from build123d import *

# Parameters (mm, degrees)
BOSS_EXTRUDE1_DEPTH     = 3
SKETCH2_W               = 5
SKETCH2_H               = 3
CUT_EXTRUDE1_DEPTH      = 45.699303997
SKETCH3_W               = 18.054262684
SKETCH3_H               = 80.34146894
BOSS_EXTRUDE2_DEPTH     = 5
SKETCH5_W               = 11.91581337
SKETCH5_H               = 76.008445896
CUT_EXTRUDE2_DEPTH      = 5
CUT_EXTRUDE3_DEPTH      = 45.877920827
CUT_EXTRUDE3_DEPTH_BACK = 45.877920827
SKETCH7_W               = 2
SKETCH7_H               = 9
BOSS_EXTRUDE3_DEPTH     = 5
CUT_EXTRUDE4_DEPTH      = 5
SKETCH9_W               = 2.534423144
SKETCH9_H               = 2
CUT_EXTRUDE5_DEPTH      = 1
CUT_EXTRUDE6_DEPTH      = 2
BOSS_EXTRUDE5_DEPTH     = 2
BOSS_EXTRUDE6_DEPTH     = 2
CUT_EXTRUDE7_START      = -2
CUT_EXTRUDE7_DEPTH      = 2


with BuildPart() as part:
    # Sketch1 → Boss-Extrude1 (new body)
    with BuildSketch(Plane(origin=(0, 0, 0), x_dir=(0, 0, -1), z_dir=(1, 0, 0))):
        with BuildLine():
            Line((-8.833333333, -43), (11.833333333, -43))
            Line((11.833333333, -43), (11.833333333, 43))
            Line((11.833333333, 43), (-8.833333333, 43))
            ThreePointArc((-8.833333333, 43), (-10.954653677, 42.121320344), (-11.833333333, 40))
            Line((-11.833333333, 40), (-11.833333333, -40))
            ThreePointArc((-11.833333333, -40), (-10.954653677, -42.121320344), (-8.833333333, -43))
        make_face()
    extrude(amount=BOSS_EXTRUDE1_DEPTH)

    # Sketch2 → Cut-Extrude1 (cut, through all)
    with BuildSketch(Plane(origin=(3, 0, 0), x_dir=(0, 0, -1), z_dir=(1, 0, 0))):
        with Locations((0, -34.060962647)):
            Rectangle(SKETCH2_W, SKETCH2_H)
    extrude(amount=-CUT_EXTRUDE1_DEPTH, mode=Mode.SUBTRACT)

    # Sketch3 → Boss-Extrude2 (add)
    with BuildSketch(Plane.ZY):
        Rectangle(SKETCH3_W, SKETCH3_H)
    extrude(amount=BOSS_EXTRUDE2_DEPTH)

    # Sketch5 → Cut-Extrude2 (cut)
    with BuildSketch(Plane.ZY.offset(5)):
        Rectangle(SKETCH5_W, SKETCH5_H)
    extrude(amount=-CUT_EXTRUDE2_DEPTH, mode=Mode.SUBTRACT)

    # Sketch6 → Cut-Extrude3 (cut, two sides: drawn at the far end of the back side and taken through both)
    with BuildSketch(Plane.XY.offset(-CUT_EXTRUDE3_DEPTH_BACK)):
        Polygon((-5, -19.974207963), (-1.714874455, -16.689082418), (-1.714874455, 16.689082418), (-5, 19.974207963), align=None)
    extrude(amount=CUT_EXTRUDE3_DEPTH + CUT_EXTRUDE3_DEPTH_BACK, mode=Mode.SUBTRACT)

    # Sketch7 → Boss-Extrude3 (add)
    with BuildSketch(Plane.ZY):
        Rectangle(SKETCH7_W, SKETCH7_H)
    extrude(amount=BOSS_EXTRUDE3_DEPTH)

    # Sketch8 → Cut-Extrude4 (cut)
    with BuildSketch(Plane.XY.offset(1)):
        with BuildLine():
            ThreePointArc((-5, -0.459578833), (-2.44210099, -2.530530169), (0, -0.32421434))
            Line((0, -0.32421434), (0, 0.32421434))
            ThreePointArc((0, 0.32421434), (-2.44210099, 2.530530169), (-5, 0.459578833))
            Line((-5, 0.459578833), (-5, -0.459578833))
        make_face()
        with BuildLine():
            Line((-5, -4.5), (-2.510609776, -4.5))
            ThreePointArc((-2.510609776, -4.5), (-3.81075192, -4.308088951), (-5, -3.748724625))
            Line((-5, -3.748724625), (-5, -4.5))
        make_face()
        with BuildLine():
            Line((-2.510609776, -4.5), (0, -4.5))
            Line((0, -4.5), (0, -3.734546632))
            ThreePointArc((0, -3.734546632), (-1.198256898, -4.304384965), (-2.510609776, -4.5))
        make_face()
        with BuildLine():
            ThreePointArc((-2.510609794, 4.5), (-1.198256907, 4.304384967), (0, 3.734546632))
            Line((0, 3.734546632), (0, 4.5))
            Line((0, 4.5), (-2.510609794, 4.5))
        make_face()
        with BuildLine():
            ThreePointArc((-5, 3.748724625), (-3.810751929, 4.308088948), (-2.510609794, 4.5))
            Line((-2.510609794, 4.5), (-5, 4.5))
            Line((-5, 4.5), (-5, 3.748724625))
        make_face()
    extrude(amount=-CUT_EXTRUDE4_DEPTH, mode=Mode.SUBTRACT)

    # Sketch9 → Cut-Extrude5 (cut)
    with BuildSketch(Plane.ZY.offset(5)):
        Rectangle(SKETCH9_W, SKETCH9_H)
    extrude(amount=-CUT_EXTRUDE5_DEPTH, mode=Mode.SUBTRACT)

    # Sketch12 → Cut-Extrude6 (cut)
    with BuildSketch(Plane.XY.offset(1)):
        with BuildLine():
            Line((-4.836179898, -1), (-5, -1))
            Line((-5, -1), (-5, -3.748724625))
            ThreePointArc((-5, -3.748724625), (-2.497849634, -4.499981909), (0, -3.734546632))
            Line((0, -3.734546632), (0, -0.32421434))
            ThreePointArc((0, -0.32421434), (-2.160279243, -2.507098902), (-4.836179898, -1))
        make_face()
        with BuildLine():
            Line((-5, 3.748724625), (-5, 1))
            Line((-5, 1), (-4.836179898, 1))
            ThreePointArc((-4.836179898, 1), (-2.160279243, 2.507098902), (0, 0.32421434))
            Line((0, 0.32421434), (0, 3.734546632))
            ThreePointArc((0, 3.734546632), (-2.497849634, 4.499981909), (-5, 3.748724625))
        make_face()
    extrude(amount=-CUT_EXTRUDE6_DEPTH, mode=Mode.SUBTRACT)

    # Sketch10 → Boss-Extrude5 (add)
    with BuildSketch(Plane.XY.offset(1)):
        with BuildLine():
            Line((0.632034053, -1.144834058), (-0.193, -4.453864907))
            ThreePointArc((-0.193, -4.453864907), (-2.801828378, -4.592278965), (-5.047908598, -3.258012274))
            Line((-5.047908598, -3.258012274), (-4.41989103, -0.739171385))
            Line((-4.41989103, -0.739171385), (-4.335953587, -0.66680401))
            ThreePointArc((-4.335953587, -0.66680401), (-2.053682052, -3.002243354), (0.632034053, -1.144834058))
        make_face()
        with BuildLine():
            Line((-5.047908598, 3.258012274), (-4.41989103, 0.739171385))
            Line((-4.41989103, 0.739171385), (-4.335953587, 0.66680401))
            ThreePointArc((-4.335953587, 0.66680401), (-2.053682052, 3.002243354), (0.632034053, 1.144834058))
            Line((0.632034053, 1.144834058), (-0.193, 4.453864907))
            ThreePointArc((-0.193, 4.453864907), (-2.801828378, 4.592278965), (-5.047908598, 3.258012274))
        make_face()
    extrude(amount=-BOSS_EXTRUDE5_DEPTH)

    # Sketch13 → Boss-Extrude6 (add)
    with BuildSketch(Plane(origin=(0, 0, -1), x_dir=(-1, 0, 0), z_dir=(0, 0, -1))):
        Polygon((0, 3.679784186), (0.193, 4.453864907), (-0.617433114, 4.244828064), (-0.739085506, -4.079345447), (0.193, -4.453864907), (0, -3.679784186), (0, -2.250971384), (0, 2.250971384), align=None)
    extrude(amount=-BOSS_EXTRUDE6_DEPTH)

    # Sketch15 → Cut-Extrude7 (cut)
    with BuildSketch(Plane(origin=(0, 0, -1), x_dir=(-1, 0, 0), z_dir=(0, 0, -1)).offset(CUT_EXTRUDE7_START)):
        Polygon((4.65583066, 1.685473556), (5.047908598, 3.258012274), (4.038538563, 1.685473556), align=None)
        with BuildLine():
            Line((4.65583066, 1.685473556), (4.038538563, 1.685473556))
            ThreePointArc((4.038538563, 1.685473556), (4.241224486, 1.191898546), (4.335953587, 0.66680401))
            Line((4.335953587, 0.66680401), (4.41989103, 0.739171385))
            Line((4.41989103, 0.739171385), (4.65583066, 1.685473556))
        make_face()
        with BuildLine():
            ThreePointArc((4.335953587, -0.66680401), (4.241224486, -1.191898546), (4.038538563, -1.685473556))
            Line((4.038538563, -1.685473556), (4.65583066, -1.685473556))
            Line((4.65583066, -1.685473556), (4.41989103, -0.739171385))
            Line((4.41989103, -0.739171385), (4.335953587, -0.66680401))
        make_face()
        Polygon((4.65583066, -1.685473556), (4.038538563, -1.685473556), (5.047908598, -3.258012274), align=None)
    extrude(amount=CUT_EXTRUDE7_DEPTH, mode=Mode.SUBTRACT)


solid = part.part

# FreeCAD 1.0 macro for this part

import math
import FreeCAD as App
import Part
import Sketcher

V = App.Vector
Q = App.Units.Quantity


def add_polygon(sketch, points):
    """Adds a closed chain of lines whose ends are joined by coincident constraints."""
    first, n = sketch.GeometryCount, len(points)
    for a, b in zip(points, points[1:] + points[:1]):
        sketch.addGeometry(Part.LineSegment(App.Vector(*a, 0), App.Vector(*b, 0)), False)
    for i in range(n):
        sketch.addConstraint(Sketcher.Constraint("Coincident", first + i, 2, first + (i + 1) % n, 1))

doc = App.newDocument("Part")
body = doc.addObject("PartDesign::Body", "Body")

# Sketch on YZ plane
sketch1 = doc.addObject("Sketcher::SketchObject", "Sketch")
body.addObject(sketch1)
sketch1.AttachmentSupport = (doc.YZ_Plane, [""])
sketch1.MapMode = "FlatFace"
sketch1.addGeometry(Part.LineSegment(V(-43, 8.8, 0), V(-43, -11.8, 0)), False)
sketch1.addGeometry(Part.LineSegment(V(-43, -11.8, 0), V(43, -11.8, 0)), False)
sketch1.addGeometry(Part.LineSegment(V(43, -11.8, 0), V(43, 8.8, 0)), False)
sketch1.addGeometry(Part.ArcOfCircle(Part.Circle(V(40, 8.8, 0), V(0, 0, 1), 3), math.radians(0), math.radians(90)), False)
sketch1.addGeometry(Part.LineSegment(V(40, 11.8, 0), V(-40, 11.8, 0)), False)
sketch1.addGeometry(Part.ArcOfCircle(Part.Circle(V(-40, 8.8, 0), V(0, 0, 1), 3), math.radians(90), math.radians(180)), False)
sketch1.addConstraint(Sketcher.Constraint("Coincident", 0, 2, 1, 1))
sketch1.addConstraint(Sketcher.Constraint("Coincident", 1, 2, 2, 1))
sketch1.addConstraint(Sketcher.Constraint("Tangent", 2, 2, 3, 1))
sketch1.addConstraint(Sketcher.Constraint("Tangent", 3, 2, 4, 1))
sketch1.addConstraint(Sketcher.Constraint("Tangent", 4, 2, 5, 1))
sketch1.addConstraint(Sketcher.Constraint("Tangent", 5, 2, 0, 1))
sketch1.addConstraint(Sketcher.Constraint("Vertical", 0))
sketch1.addConstraint(Sketcher.Constraint("Horizontal", 1))
sketch1.addConstraint(Sketcher.Constraint("Vertical", 2))
sketch1.addConstraint(Sketcher.Constraint("Horizontal", 4))
sketch1.addConstraint(Sketcher.Constraint("Equal", 3, 5))
sketch1.addConstraint(Sketcher.Constraint("Radius", 3, 3.0))
sketch1.addConstraint(Sketcher.Constraint("DistanceX", 1, 1, 1, 2, 86.0))
sketch1.addConstraint(Sketcher.Constraint("DistanceX", -1, 1, 3, 3, 40.0))
sketch1.addConstraint(Sketcher.Constraint("DistanceY", 0, 2, 0, 1, 20.666667))
sketch1.addConstraint(Sketcher.Constraint("DistanceY", -1, 1, 3, 3, 8.833333))
pad1 = doc.addObject("PartDesign::Pad", "Pad")
body.addObject(pad1)
pad1.Profile = sketch1
pad1.Length = 3

# Sketch on YZ plane
sketch2 = doc.addObject("Sketcher::SketchObject", "Sketch001")
body.addObject(sketch2)
sketch2.AttachmentSupport = (doc.YZ_Plane, [""])
sketch2.MapMode = "FlatFace"
sketch2.AttachmentOffset = App.Placement(V(0, 0, 3), App.Rotation())
add_polygon(sketch2, [(-32.6, 2.5), (-35.6, 2.5), (-35.6, -2.5), (-32.6, -2.5)])  # lines 0-3
sketch2.addConstraint(Sketcher.Constraint("Horizontal", 0))
sketch2.addConstraint(Sketcher.Constraint("Vertical", 1))
sketch2.addConstraint(Sketcher.Constraint("Horizontal", 2))
sketch2.addConstraint(Sketcher.Constraint("Vertical", 3))
sketch2.addConstraint(Sketcher.Constraint("DistanceX", 0, 2, 0, 1, 3.0))
sketch2.addConstraint(Sketcher.Constraint("DistanceY", 1, 2, 1, 1, 5.0))
sketch2.addConstraint(Sketcher.Constraint("DistanceY", -1, 1, 0, 2, 2.5))
sketch2.addConstraint(Sketcher.Constraint("DistanceX", 0, 2, -1, 1, 35.560963))
pocket1 = doc.addObject("PartDesign::Pocket", "Pocket")
body.addObject(pocket1)
pocket1.Profile = sketch2
pocket1.Type = "ThroughAll"

# Sketch on YZ plane
sketch3 = doc.addObject("Sketcher::SketchObject", "Sketch002")
body.addObject(sketch3)
sketch3.AttachmentSupport = (doc.YZ_Plane, [""])
sketch3.MapMode = "FlatFace"
add_polygon(sketch3, [(40, -9), (-40, -9), (-40, 9), (40, 9)])  # lines 0-3
sketch3.addConstraint(Sketcher.Constraint("Horizontal", 0))
sketch3.addConstraint(Sketcher.Constraint("Vertical", 1))
sketch3.addConstraint(Sketcher.Constraint("Horizontal", 2))
sketch3.addConstraint(Sketcher.Constraint("Vertical", 3))
sketch3.addConstraint(Sketcher.Constraint("Symmetric", 0, 2, 2, 2, -1, 1))
sketch3.addConstraint(Sketcher.Constraint("DistanceX", 0, 2, 0, 1, 80.341469))
sketch3.addConstraint(Sketcher.Constraint("DistanceY", 1, 1, 1, 2, 18.054263))
pad2 = doc.addObject("PartDesign::Pad", "Pad001")
body.addObject(pad2)
pad2.Profile = sketch3
pad2.Length = 5
pad2.Reversed = True

# Sketch on YZ plane
sketch4 = doc.addObject("Sketcher::SketchObject", "Sketch003")
body.addObject(sketch4)
sketch4.AttachmentSupport = (doc.YZ_Plane, [""])
sketch4.MapMode = "FlatFace"
sketch4.AttachmentOffset = App.Placement(V(0, 0, -5), App.Rotation())
add_polygon(sketch4, [(38, -6), (-38, -6), (-38, 6), (38, 6)])  # lines 0-3
sketch4.addConstraint(Sketcher.Constraint("Horizontal", 0))
sketch4.addConstraint(Sketcher.Constraint("Vertical", 1))
sketch4.addConstraint(Sketcher.Constraint("Horizontal", 2))
sketch4.addConstraint(Sketcher.Constraint("Vertical", 3))
sketch4.addConstraint(Sketcher.Constraint("Symmetric", 0, 2, 2, 2, -1, 1))
sketch4.addConstraint(Sketcher.Constraint("DistanceX", 0, 2, 0, 1, 76.008446))
sketch4.addConstraint(Sketcher.Constraint("DistanceY", 1, 1, 1, 2, 11.915813))
pocket2 = doc.addObject("PartDesign::Pocket", "Pocket001")
body.addObject(pocket2)
pocket2.Profile = sketch4
pocket2.Length = 5
pocket2.Reversed = True

# Sketch on XY plane
sketch5 = doc.addObject("Sketcher::SketchObject", "Sketch004")
body.addObject(sketch5)
sketch5.AttachmentSupport = (doc.XY_Plane, [""])
sketch5.MapMode = "FlatFace"
add_polygon(sketch5, [(-5, -20), (-1.7, -16.7), (-1.7, 16.7), (-5, 20)])  # lines 0-3
sketch5.addConstraint(Sketcher.Constraint("Vertical", 1))
sketch5.addConstraint(Sketcher.Constraint("Vertical", 3))
sketch5.addConstraint(Sketcher.Constraint("Perpendicular", 0, 2))
sketch5.addConstraint(Sketcher.Constraint("Equal", 0, 2))
sketch5.addConstraint(Sketcher.Constraint("DistanceX", 2, 2, -1, 1, 5.0))
sketch5.addConstraint(Sketcher.Constraint("Distance", 0, 4.645869))
sketch5.addConstraint(Sketcher.Constraint("DistanceY", 1, 1, 1, 2, 33.378165))
sketch5.addConstraint(Sketcher.Constraint("DistanceY", 0, 2, -1, 1, 16.689082))
pocket3 = doc.addObject("PartDesign::Pocket", "Pocket002")
body.addObject(pocket3)
pocket3.Profile = sketch5
pocket3.Type = "ThroughAll"
pocket3.Midplane = True

# Sketch on YZ plane
sketch6 = doc.addObject("Sketcher::SketchObject", "Sketch005")
body.addObject(sketch6)
sketch6.AttachmentSupport = (doc.YZ_Plane, [""])
sketch6.MapMode = "FlatFace"
add_polygon(sketch6, [(4.5, -1), (-4.5, -1), (-4.5, 1), (4.5, 1)])  # lines 0-3
sketch6.addConstraint(Sketcher.Constraint("Horizontal", 0))
sketch6.addConstraint(Sketcher.Constraint("Vertical", 1))
sketch6.addConstraint(Sketcher.Constraint("Horizontal", 2))
sketch6.addConstraint(Sketcher.Constraint("Vertical", 3))
sketch6.addConstraint(Sketcher.Constraint("Symmetric", 0, 2, 2, 2, -1, 1))
sketch6.addConstraint(Sketcher.Constraint("DistanceX", 0, 2, 0, 1, 9.0))
sketch6.addConstraint(Sketcher.Constraint("DistanceY", 1, 1, 1, 2, 2.0))
pad3 = doc.addObject("PartDesign::Pad", "Pad002")
body.addObject(pad3)
pad3.Profile = sketch6
pad3.Length = 5
pad3.Reversed = True

# Sketch on XY plane
sketch7 = doc.addObject("Sketcher::SketchObject", "Sketch006")
body.addObject(sketch7)
sketch7.AttachmentSupport = (doc.XY_Plane, [""])
sketch7.MapMode = "FlatFace"
sketch7.AttachmentOffset = App.Placement(V(0, 0, 1), App.Rotation())
sketch7.addGeometry(Part.ArcOfCircle(Part.Circle(V(-2.5, 0, 0), V(0, 0, 1), 2.5), math.radians(-170), math.radians(-7)), False)
sketch7.addGeometry(Part.LineSegment(V(0, -0.3, 0), V(0, 0.3, 0)), False)
sketch7.addGeometry(Part.ArcOfCircle(Part.Circle(V(-2.5, 0, 0), V(0, 0, 1), 2.5), math.radians(7), math.radians(170)), False)
sketch7.addGeometry(Part.LineSegment(V(-5, 0.5, 0), V(-5, -0.5, 0)), False)
sketch7.addGeometry(Part.LineSegment(V(-5, -4.5, 0), V(-2.5, -4.5, 0)), False)
sketch7.addGeometry(Part.ArcOfCircle(Part.Circle(V(-2.5, 0, 0), V(0, 0, 1), 4.5), math.radians(-124), math.radians(-90)), False)
sketch7.addGeometry(Part.LineSegment(V(-5, -3.7, 0), V(-5, -4.5, 0)), False)
sketch7.addGeometry(Part.LineSegment(V(-2.5, -4.5, 0), V(0, -4.5, 0)), False)
sketch7.addGeometry(Part.LineSegment(V(0, -4.5, 0), V(0, -3.7, 0)), False)
sketch7.addGeometry(Part.ArcOfCircle(Part.Circle(V(-2.5, 0, 0), V(0, 0, 1), 4.5), math.radians(-90), math.radians(-56)), False)
sketch7.addGeometry(Part.ArcOfCircle(Part.Circle(V(-2.5, 0, 0), V(0, 0, 1), 4.5), math.radians(56), math.radians(90)), False)
sketch7.addGeometry(Part.LineSegment(V(0, 3.7, 0), V(0, 4.5, 0)), False)
sketch7.addGeometry(Part.LineSegment(V(0, 4.5, 0), V(-2.5, 4.5, 0)), False)
sketch7.addGeometry(Part.ArcOfCircle(Part.Circle(V(-2.5, 0, 0), V(0, 0, 1), 4.5), math.radians(90), math.radians(124)), False)
sketch7.addGeometry(Part.LineSegment(V(-2.5, 4.5, 0), V(-5, 4.5, 0)), False)
sketch7.addGeometry(Part.LineSegment(V(-5, 4.5, 0), V(-5, 3.7, 0)), False)
sketch7.addConstraint(Sketcher.Constraint("Coincident", 0, 2, 1, 1))
sketch7.addConstraint(Sketcher.Constraint("Coincident", 1, 2, 2, 1))
sketch7.addConstraint(Sketcher.Constraint("Coincident", 2, 2, 3, 1))
sketch7.addConstraint(Sketcher.Constraint("Coincident", 3, 2, 0, 1))
sketch7.addConstraint(Sketcher.Constraint("Tangent", 4, 2, 5, 2))
sketch7.addConstraint(Sketcher.Constraint("Coincident", 5, 1, 6, 1))
sketch7.addConstraint(Sketcher.Constraint("Coincident", 6, 2, 4, 1))
sketch7.addConstraint(Sketcher.Constraint("Coincident", 7, 2, 8, 1))
sketch7.addConstraint(Sketcher.Constraint("Coincident", 8, 2, 9, 2))
sketch7.addConstraint(Sketcher.Constraint("Tangent", 9, 1, 7, 1))
sketch7.addConstraint(Sketcher.Constraint("Coincident", 10, 1, 11, 1))
sketch7.addConstraint(Sketcher.Constraint("Coincident", 11, 2, 12, 1))
sketch7.addConstraint(Sketcher.Constraint("Tangent", 12, 2, 10, 2))
sketch7.addConstraint(Sketcher.Constraint("Tangent", 13, 1, 14, 1))
sketch7.addConstraint(Sketcher.Constraint("Coincident", 14, 2, 15, 1))
sketch7.addConstraint(Sketcher.Constraint("Coincident", 15, 2, 13, 2))
sketch7.addConstraint(Sketcher.Constraint("Vertical", 1))
sketch7.addConstraint(Sketcher.Constraint("Vertical", 3))
sketch7.addConstraint(Sketcher.Constraint("Horizontal", 4))
sketch7.addConstraint(Sketcher.Constraint("Vertical", 6))
sketch7.addConstraint(Sketcher.Constraint("Horizontal", 7))
sketch7.addConstraint(Sketcher.Constraint("Vertical", 8))
sketch7.addConstraint(Sketcher.Constraint("Vertical", 11))
sketch7.addConstraint(Sketcher.Constraint("Horizontal", 12))
sketch7.addConstraint(Sketcher.Constraint("Horizontal", 14))
sketch7.addConstraint(Sketcher.Constraint("Vertical", 15))
sketch7.addConstraint(Sketcher.Constraint("Coincident", 2, 3, 0, 3))
sketch7.addConstraint(Sketcher.Constraint("Coincident", 5, 3, 0, 3))
sketch7.addConstraint(Sketcher.Constraint("Coincident", 9, 3, 0, 3))
sketch7.addConstraint(Sketcher.Constraint("Coincident", 10, 3, 0, 3))
sketch7.addConstraint(Sketcher.Constraint("Coincident", 13, 3, 0, 3))
sketch7.addConstraint(Sketcher.Constraint("Equal", 0, 2))
sketch7.addConstraint(Sketcher.Constraint("Equal", 5, 9))
sketch7.addConstraint(Sketcher.Constraint("Equal", 9, 10))
sketch7.addConstraint(Sketcher.Constraint("Equal", 10, 13))
sketch7.addConstraint(Sketcher.Constraint("Symmetric", 0, 2, 1, 2, -1, 1))
sketch7.addConstraint(Sketcher.Constraint("Symmetric", 8, 2, 10, 1, -1, 1))
sketch7.addConstraint(Sketcher.Constraint("Vertical", 3, 2, 5, 1))
sketch7.addConstraint(Sketcher.Constraint("Vertical", 6, 2, 14, 2))
sketch7.addConstraint(Sketcher.Constraint("Radius", 5, 4.5))
sketch7.addConstraint(Sketcher.Constraint("DistanceX", 2, 2, -1, 1, 5.0))
sketch7.addConstraint(Sketcher.Constraint("Radius", 0, 2.531457))
sketch7.addConstraint(Sketcher.Constraint("DistanceX", 4, 1, 4, 2, 2.48939))
pocket4 = doc.addObject("PartDesign::Pocket", "Pocket003")
body.addObject(pocket4)
pocket4.Profile = sketch7
pocket4.Length = 5

# Sketch on YZ plane
sketch8 = doc.addObject("Sketcher::SketchObject", "Sketch007")
body.addObject(sketch8)
sketch8.AttachmentSupport = (doc.YZ_Plane, [""])
sketch8.MapMode = "FlatFace"
sketch8.AttachmentOffset = App.Placement(V(0, 0, -5), App.Rotation())
add_polygon(sketch8, [(1, -1.3), (-1, -1.3), (-1, 1.3), (1, 1.3)])  # lines 0-3
sketch8.addConstraint(Sketcher.Constraint("Horizontal", 0))
sketch8.addConstraint(Sketcher.Constraint("Vertical", 1))
sketch8.addConstraint(Sketcher.Constraint("Horizontal", 2))
sketch8.addConstraint(Sketcher.Constraint("Vertical", 3))
sketch8.addConstraint(Sketcher.Constraint("Symmetric", 0, 2, 2, 2, -1, 1))
sketch8.addConstraint(Sketcher.Constraint("DistanceX", 0, 2, 0, 1, 2.0))
sketch8.addConstraint(Sketcher.Constraint("DistanceY", 1, 1, 1, 2, 2.534423))
pocket5 = doc.addObject("PartDesign::Pocket", "Pocket004")
body.addObject(pocket5)
pocket5.Profile = sketch8
pocket5.Length = 1
pocket5.Reversed = True

# Sketch on XY plane
sketch9 = doc.addObject("Sketcher::SketchObject", "Sketch008")
body.addObject(sketch9)
sketch9.AttachmentSupport = (doc.XY_Plane, [""])
sketch9.MapMode = "FlatFace"
sketch9.AttachmentOffset = App.Placement(V(0, 0, 1), App.Rotation())
sketch9.addGeometry(Part.LineSegment(V(-4.84, -1, 0), V(-5, -1, 0)), False)
sketch9.addGeometry(Part.LineSegment(V(-5, -1, 0), V(-5, -3.75, 0)), False)
sketch9.addGeometry(Part.ArcOfCircle(Part.Circle(V(-2.51, 0, 0), V(0, 0, 1), 4.5), math.radians(-124), math.radians(-56)), False)
sketch9.addGeometry(Part.LineSegment(V(0, -3.73, 0), V(0, -0.32, 0)), False)
sketch9.addGeometry(Part.ArcOfCircle(Part.Circle(V(-2.51, 0, 0), V(0, 0, 1), 2.53), math.radians(-157), math.radians(-7)), False)
sketch9.addGeometry(Part.LineSegment(V(-5, 3.75, 0), V(-5, 1, 0)), False)
sketch9.addGeometry(Part.LineSegment(V(-5, 1, 0), V(-4.84, 1, 0)), False)
sketch9.addGeometry(Part.ArcOfCircle(Part.Circle(V(-2.51, 0, 0), V(0, 0, 1), 2.53), math.radians(7), math.radians(157)), False)
sketch9.addGeometry(Part.LineSegment(V(0, 0.32, 0), V(0, 3.73, 0)), False)
sketch9.addGeometry(Part.ArcOfCircle(Part.Circle(V(-2.51, 0, 0), V(0, 0, 1), 4.5), math.radians(56), math.radians(124)), False)
sketch9.addConstraint(Sketcher.Constraint("Coincident", 0, 2, 1, 1))
sketch9.addConstraint(Sketcher.Constraint("Coincident", 1, 2, 2, 1))
sketch9.addConstraint(Sketcher.Constraint("Coincident", 2, 2, 3, 1))
sketch9.addConstraint(Sketcher.Constraint("Coincident", 3, 2, 4, 2))
sketch9.addConstraint(Sketcher.Constraint("Coincident", 4, 1, 0, 1))
sketch9.addConstraint(Sketcher.Constraint("Coincident", 5, 2, 6, 1))
sketch9.addConstraint(Sketcher.Constraint("Coincident", 6, 2, 7, 2))
sketch9.addConstraint(Sketcher.Constraint("Coincident", 7, 1, 8, 1))
sketch9.addConstraint(Sketcher.Constraint("Coincident", 8, 2, 9, 1))
sketch9.addConstraint(Sketcher.Constraint("Coincident", 9, 2, 5, 1))
sketch9.addConstraint(Sketcher.Constraint("Horizontal", 0))
sketch9.addConstraint(Sketcher.Constraint("Vertical", 1))
sketch9.addConstraint(Sketcher.Constraint("Vertical", 3))
sketch9.addConstraint(Sketcher.Constraint("Vertical", 5))
sketch9.addConstraint(Sketcher.Constraint("Horizontal", 6))
sketch9.addConstraint(Sketcher.Constraint("Vertical", 8))
sketch9.addConstraint(Sketcher.Constraint("Coincident", 4, 3, 2, 3))
sketch9.addConstraint(Sketcher.Constraint("Coincident", 7, 3, 2, 3))
sketch9.addConstraint(Sketcher.Constraint("Coincident", 9, 3, 2, 3))
sketch9.addConstraint(Sketcher.Constraint("Equal", 4, 7))
sketch9.addConstraint(Sketcher.Constraint("Equal", 2, 9))
sketch9.addConstraint(Sketcher.Constraint("Symmetric", 3, 2, 7, 1, -1, 1))
sketch9.addConstraint(Sketcher.Constraint("Symmetric", 0, 2, 5, 2, -1))
sketch9.addConstraint(Sketcher.Constraint("PointOnObject", 2, 3, -1))
sketch9.addConstraint(Sketcher.Constraint("Radius", 2, 4.5))
sketch9.addConstraint(Sketcher.Constraint("DistanceX", 0, 2, -1, 1, 5.0))
sketch9.addConstraint(Sketcher.Constraint("DistanceY", 0, 2, -1, 1, 1.0))
sketch9.addConstraint(Sketcher.Constraint("Radius", 4, 2.531457))
sketch9.addConstraint(Sketcher.Constraint("DistanceX", 0, 2, 0, 1, 0.16382))
pocket6 = doc.addObject("PartDesign::Pocket", "Pocket005")
body.addObject(pocket6)
pocket6.Profile = sketch9
pocket6.Length = 2

# Sketch on XY plane
sketch10 = doc.addObject("Sketcher::SketchObject", "Sketch009")
body.addObject(sketch10)
sketch10.AttachmentSupport = (doc.XY_Plane, [""])
sketch10.MapMode = "FlatFace"
sketch10.AttachmentOffset = App.Placement(V(0, 0, 1), App.Rotation())
sketch10.addGeometry(Part.LineSegment(V(-0.19, -4.45, 0), V(0.63, -1.14, 0)), False)
sketch10.addGeometry(Part.ArcOfCircle(Part.Circle(V(-1.81, -0.48, 0), V(0, 0, 1), 2.53), math.radians(-176), math.radians(-15)), False)
sketch10.addGeometry(Part.LineSegment(V(-4.34, -0.67, 0), V(-4.42, -0.74, 0)), False)
sketch10.addGeometry(Part.LineSegment(V(-4.42, -0.74, 0), V(-5.05, -3.26, 0)), False)
sketch10.addGeometry(Part.ArcOfCircle(Part.Circle(V(-1.73, -0.22, 0), V(0, 0, 1), 4.5), math.radians(-138), math.radians(-70)), False)
sketch10.addGeometry(Part.LineSegment(V(-5.05, 3.26, 0), V(-4.42, 0.74, 0)), False)
sketch10.addGeometry(Part.LineSegment(V(-4.42, 0.74, 0), V(-4.34, 0.67, 0)), False)
sketch10.addGeometry(Part.ArcOfCircle(Part.Circle(V(-1.81, 0.48, 0), V(0, 0, 1), 2.53), math.radians(15), math.radians(176)), False)
sketch10.addGeometry(Part.LineSegment(V(0.63, 1.14, 0), V(-0.19, 4.45, 0)), False)
sketch10.addGeometry(Part.ArcOfCircle(Part.Circle(V(-1.73, 0.22, 0), V(0, 0, 1), 4.5), math.radians(70), math.radians(138)), False)
sketch10.addConstraint(Sketcher.Constraint("Coincident", 0, 2, 1, 2))
sketch10.addConstraint(Sketcher.Constraint("Coincident", 1, 1, 2, 1))
sketch10.addConstraint(Sketcher.Constraint("Coincident", 2, 2, 3, 1))
sketch10.addConstraint(Sketcher.Constraint("Coincident", 3, 2, 4, 1))
sketch10.addConstraint(Sketcher.Constraint("Coincident", 4, 2, 0, 1))
sketch10.addConstraint(Sketcher.Constraint("Coincident", 5, 2, 6, 1))
sketch10.addConstraint(Sketcher.Constraint("Coincident", 6, 2, 7, 2))
sketch10.addConstraint(Sketcher.Constraint("Coincident", 7, 1, 8, 1))
sketch10.addConstraint(Sketcher.Constraint("Coincident", 8, 2, 9, 1))
sketch10.addConstraint(Sketcher.Constraint("Coincident", 9, 2, 5, 1))
sketch10.addConstraint(Sketcher.Constraint("Equal", 1, 7))
sketch10.addConstraint(Sketcher.Constraint("Equal", 4, 9))
sketch10.addConstraint(Sketcher.Constraint("Symmetric", 1, 3, 7, 3, -1))
sketch10.addConstraint(Sketcher.Constraint("Symmetric", 4, 3, 9, 3, -1))
sketch10.addConstraint(Sketcher.Constraint("Symmetric", 2, 2, 5, 2, -1))
sketch10.addConstraint(Sketcher.Constraint("Parallel", 0, 3))
sketch10.addConstraint(Sketcher.Constraint("Parallel", 5, 8))
sketch10.addConstraint(Sketcher.Constraint("Vertical", 1, 1, 6, 2))
sketch10.addConstraint(Sketcher.Constraint("Vertical", 0, 2, 7, 1))
sketch10.addConstraint(Sketcher.Constraint("Vertical", 4, 2, 8, 2))
sketch10.addConstraint(Sketcher.Constraint("Radius", 4, 4.5))
sketch10.addConstraint(Sketcher.Constraint("Angle", 0, Q("76 deg")))
sketch10.addConstraint(Sketcher.Constraint("DistanceX", 4, 2, -1, 1, 0.193))
sketch10.addConstraint(Sketcher.Constraint("Radius", 1, 2.531457))
sketch10.addConstraint(Sketcher.Constraint("DistanceX", 4, 3, 0, 2, 2.357599))
sketch10.addConstraint(Sketcher.Constraint("Distance", 3, 2.595952))
sketch10.addConstraint(Sketcher.Constraint("DistanceX", 1, 3, -1, 1, 1.81122))
sketch10.addConstraint(Sketcher.Constraint("DistanceY", 4, 3, -1, 1, 0.222879))
sketch10.addConstraint(Sketcher.Constraint("DistanceX", 2, 2, -1, 1, 4.419891))
sketch10.addConstraint(Sketcher.Constraint("DistanceY", 2, 2, -1, 1, 0.739171))
sketch10.addConstraint(Sketcher.Constraint("DistanceY", 1, 1, 1, 3, 0.18438))
pad4 = doc.addObject("PartDesign::Pad", "Pad003")
body.addObject(pad4)
pad4.Profile = sketch10
pad4.Length = 2
pad4.Reversed = True

# Sketch on XY plane
sketch11 = doc.addObject("Sketcher::SketchObject", "Sketch010")
body.addObject(sketch11)
sketch11.AttachmentSupport = (doc.XY_Plane, [""])
sketch11.MapMode = "FlatFace"
sketch11.AttachmentOffset = App.Placement(V(0, 0, -1), App.Rotation())
add_polygon(sketch11, [(0, 3.7), (-0.2, 4.5), (0.6, 4.2), (0.7, -4.1), (-0.2, -4.5), (0, -3.7)])  # lines 0-5
sketch11.addConstraint(Sketcher.Constraint("Vertical", 5))
sketch11.addConstraint(Sketcher.Constraint("Symmetric", 4, 2, 5, 2, -1, 1))
sketch11.addConstraint(Sketcher.Constraint("Symmetric", 0, 2, 3, 2, -1))
sketch11.addConstraint(Sketcher.Constraint("Angle", 0, Q("104 deg")))
sketch11.addConstraint(Sketcher.Constraint("DistanceX", 0, 2, -1, 1, 0.193))
sketch11.addConstraint(Sketcher.Constraint("DistanceY", 5, 1, 5, 2, 7.359568))
sketch11.addConstraint(Sketcher.Constraint("DistanceY", -1, 1, 1, 2, 4.244828))
sketch11.addConstraint(Sketcher.Constraint("DistanceY", 2, 2, 0, 2, 8.53321))
sketch11.addConstraint(Sketcher.Constraint("Distance", 1, 0.836958))
sketch11.addConstraint(Sketcher.Constraint("Distance", 2, 8.325062))
pad5 = doc.addObject("PartDesign::Pad", "Pad004")
body.addObject(pad5)
pad5.Profile = sketch11
pad5.Length = 2

# Sketch on XY plane
sketch12 = doc.addObject("Sketcher::SketchObject", "Sketch011")
body.addObject(sketch12)
sketch12.AttachmentSupport = (doc.XY_Plane, [""])
sketch12.MapMode = "FlatFace"
sketch12.AttachmentOffset = App.Placement(V(0, 0, 1), App.Rotation())
sketch12.addGeometry(Part.LineSegment(V(-4.66, 1.69, 0), V(-5.05, 3.26, 0)), False)
sketch12.addGeometry(Part.LineSegment(V(-5.05, 3.26, 0), V(-4.04, 1.69, 0)), False)
sketch12.addGeometry(Part.ArcOfCircle(Part.Circle(V(-1.81, 0.48, 0), V(0, 0, 1), 2.53), math.radians(152), math.radians(176)), False)
sketch12.addGeometry(Part.LineSegment(V(-4.34, 0.67, 0), V(-4.42, 0.74, 0)), False)
sketch12.addGeometry(Part.LineSegment(V(-4.42, 0.74, 0), V(-4.66, 1.69, 0)), False)
sketch12.addGeometry(Part.ArcOfCircle(Part.Circle(V(-1.81, -0.48, 0), V(0, 0, 1), 2.53), math.radians(-176), math.radians(-152)), False)
sketch12.addGeometry(Part.LineSegment(V(-4.04, -1.69, 0), V(-5.05, -3.26, 0)), False)
sketch12.addGeometry(Part.LineSegment(V(-5.05, -3.26, 0), V(-4.66, -1.69, 0)), False)
sketch12.addGeometry(Part.LineSegment(V(-4.66, -1.69, 0), V(-4.42, -0.74, 0)), False)
sketch12.addGeometry(Part.LineSegment(V(-4.42, -0.74, 0), V(-4.34, -0.67, 0)), False)
sketch12.addConstraint(Sketcher.Constraint("Coincident", 0, 2, 1, 1))
sketch12.addConstraint(Sketcher.Constraint("Coincident", 1, 2, 2, 1))
sketch12.addConstraint(Sketcher.Constraint("Coincident", 2, 2, 3, 1))
sketch12.addConstraint(Sketcher.Constraint("Coincident", 3, 2, 4, 1))
sketch12.addConstraint(Sketcher.Constraint("Coincident", 4, 2, 0, 1))
sketch12.addConstraint(Sketcher.Constraint("Coincident", 5, 2, 6, 1))
sketch12.addConstraint(Sketcher.Constraint("Coincident", 6, 2, 7, 1))
sketch12.addConstraint(Sketcher.Constraint("Coincident", 7, 2, 8, 1))
sketch12.addConstraint(Sketcher.Constraint("Coincident", 8, 2, 9, 1))
sketch12.addConstraint(Sketcher.Constraint("Coincident", 9, 2, 5, 1))
sketch12.addConstraint(Sketcher.Constraint("Equal", 2, 5))
sketch12.addConstraint(Sketcher.Constraint("Symmetric", 2, 3, 5, 3, -1))
sketch12.addConstraint(Sketcher.Constraint("Symmetric", 0, 2, 6, 2, -1))
sketch12.addConstraint(Sketcher.Constraint("Symmetric", 4, 2, 7, 2, -1))
sketch12.addConstraint(Sketcher.Constraint("Symmetric", 3, 2, 8, 2, -1))
sketch12.addConstraint(Sketcher.Constraint("Parallel", 0, 4))
sketch12.addConstraint(Sketcher.Constraint("Horizontal", 1, 2, 4, 2))
sketch12.addConstraint(Sketcher.Constraint("Horizontal", 5, 2, 7, 2))
sketch12.addConstraint(Sketcher.Constraint("Vertical", 2, 2, 9, 2))
sketch12.addConstraint(Sketcher.Constraint("Angle", 0, Q("104 deg")))
sketch12.addConstraint(Sketcher.Constraint("Radius", 2, 2.531457))
sketch12.addConstraint(Sketcher.Constraint("Distance", 0, 1.62068))
sketch12.addConstraint(Sketcher.Constraint("Distance", 1, 1.868611))
sketch12.addConstraint(Sketcher.Constraint("Distance", 4, 0.975272))
sketch12.addConstraint(Sketcher.Constraint("DistanceX", 2, 3, -1, 1, 1.81122))
sketch12.addConstraint(Sketcher.Constraint("DistanceX", 0, 2, -1, 1, 5.047909))
sketch12.addConstraint(Sketcher.Constraint("DistanceY", -1, 1, 3, 2, 0.739171))
sketch12.addConstraint(Sketcher.Constraint("DistanceY", 2, 2, 1, 2, 1.01867))
pocket7 = doc.addObject("PartDesign::Pocket", "Pocket006")
body.addObject(pocket7)
pocket7.Profile = sketch12
pocket7.Length = 2

doc.recompute()
